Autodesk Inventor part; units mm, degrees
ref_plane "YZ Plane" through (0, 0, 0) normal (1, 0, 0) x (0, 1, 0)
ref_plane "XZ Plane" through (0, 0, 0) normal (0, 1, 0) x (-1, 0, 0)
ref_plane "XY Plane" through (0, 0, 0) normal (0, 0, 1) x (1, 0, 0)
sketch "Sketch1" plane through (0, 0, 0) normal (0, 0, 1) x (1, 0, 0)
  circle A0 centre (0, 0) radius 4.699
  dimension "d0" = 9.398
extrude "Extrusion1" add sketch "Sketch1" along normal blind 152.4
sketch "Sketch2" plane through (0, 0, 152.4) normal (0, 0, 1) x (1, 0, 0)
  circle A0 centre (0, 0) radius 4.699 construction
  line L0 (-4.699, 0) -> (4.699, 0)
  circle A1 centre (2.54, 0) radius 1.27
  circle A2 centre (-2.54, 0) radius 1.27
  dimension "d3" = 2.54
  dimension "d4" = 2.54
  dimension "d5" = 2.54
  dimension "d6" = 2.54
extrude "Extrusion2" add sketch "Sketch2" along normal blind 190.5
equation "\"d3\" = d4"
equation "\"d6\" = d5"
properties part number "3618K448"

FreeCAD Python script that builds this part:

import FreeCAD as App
import Part
import Sketcher
Q = App.Units.Quantity

doc = App.newDocument("Part")
body = doc.addObject("PartDesign::Body", "Body")

# Sketch on XY plane
sketch1 = body.newObject("Sketcher::SketchObject", "Sketch")
sketch1.AttachmentSupport = (doc.getObject("XY_Plane"), [""])
sketch1.MapMode = "FlatFace"
sketch1.addGeometry(Part.Circle(App.Vector(0, 0, 0), App.Vector(0, 0, 1), 4.699), False)
sketch1.addConstraint([
    Sketcher.Constraint("Coincident", 0, 3, -1, 1),
    Sketcher.Constraint("Diameter", 0, Q("0.37 in")),
])
pad1 = body.newObject("PartDesign::Pad", "Pad")
pad1.Profile = sketch1
pad1.Length = Q("6 in")

# Sketch on XY plane
sketch2 = body.newObject("Sketcher::SketchObject", "Sketch001")
sketch2.AttachmentSupport = (doc.getObject("XY_Plane"), [""])
sketch2.MapMode = "FlatFace"
sketch2.AttachmentOffset = App.Placement(App.Vector(0, 0, 6 * 25.4), App.Rotation())
sketch2.addGeometry([
    Part.Circle(App.Vector(-2.54, 0, 0), App.Vector(0, 0, 1), 1.27),
    Part.Circle(App.Vector(2.54, 0, 0), App.Vector(0, 0, 1), 1.27),
], False)
sketch2.addConstraint([
    Sketcher.Constraint("Equal", 0, 1),
    Sketcher.Constraint("Symmetric", 0, 3, 1, 3, -1, 1),
    Sketcher.Constraint("PointOnObject", 0, 3, -1),
    Sketcher.Constraint("Diameter", 0, Q("0.1 in")),
    Sketcher.Constraint("DistanceX", 0, 3, -1, 1, Q("0.1 in")),
])
pad2 = body.newObject("PartDesign::Pad", "Pad001")
pad2.Profile = sketch2
pad2.Length = Q("7.5 in")

doc.recompute()
